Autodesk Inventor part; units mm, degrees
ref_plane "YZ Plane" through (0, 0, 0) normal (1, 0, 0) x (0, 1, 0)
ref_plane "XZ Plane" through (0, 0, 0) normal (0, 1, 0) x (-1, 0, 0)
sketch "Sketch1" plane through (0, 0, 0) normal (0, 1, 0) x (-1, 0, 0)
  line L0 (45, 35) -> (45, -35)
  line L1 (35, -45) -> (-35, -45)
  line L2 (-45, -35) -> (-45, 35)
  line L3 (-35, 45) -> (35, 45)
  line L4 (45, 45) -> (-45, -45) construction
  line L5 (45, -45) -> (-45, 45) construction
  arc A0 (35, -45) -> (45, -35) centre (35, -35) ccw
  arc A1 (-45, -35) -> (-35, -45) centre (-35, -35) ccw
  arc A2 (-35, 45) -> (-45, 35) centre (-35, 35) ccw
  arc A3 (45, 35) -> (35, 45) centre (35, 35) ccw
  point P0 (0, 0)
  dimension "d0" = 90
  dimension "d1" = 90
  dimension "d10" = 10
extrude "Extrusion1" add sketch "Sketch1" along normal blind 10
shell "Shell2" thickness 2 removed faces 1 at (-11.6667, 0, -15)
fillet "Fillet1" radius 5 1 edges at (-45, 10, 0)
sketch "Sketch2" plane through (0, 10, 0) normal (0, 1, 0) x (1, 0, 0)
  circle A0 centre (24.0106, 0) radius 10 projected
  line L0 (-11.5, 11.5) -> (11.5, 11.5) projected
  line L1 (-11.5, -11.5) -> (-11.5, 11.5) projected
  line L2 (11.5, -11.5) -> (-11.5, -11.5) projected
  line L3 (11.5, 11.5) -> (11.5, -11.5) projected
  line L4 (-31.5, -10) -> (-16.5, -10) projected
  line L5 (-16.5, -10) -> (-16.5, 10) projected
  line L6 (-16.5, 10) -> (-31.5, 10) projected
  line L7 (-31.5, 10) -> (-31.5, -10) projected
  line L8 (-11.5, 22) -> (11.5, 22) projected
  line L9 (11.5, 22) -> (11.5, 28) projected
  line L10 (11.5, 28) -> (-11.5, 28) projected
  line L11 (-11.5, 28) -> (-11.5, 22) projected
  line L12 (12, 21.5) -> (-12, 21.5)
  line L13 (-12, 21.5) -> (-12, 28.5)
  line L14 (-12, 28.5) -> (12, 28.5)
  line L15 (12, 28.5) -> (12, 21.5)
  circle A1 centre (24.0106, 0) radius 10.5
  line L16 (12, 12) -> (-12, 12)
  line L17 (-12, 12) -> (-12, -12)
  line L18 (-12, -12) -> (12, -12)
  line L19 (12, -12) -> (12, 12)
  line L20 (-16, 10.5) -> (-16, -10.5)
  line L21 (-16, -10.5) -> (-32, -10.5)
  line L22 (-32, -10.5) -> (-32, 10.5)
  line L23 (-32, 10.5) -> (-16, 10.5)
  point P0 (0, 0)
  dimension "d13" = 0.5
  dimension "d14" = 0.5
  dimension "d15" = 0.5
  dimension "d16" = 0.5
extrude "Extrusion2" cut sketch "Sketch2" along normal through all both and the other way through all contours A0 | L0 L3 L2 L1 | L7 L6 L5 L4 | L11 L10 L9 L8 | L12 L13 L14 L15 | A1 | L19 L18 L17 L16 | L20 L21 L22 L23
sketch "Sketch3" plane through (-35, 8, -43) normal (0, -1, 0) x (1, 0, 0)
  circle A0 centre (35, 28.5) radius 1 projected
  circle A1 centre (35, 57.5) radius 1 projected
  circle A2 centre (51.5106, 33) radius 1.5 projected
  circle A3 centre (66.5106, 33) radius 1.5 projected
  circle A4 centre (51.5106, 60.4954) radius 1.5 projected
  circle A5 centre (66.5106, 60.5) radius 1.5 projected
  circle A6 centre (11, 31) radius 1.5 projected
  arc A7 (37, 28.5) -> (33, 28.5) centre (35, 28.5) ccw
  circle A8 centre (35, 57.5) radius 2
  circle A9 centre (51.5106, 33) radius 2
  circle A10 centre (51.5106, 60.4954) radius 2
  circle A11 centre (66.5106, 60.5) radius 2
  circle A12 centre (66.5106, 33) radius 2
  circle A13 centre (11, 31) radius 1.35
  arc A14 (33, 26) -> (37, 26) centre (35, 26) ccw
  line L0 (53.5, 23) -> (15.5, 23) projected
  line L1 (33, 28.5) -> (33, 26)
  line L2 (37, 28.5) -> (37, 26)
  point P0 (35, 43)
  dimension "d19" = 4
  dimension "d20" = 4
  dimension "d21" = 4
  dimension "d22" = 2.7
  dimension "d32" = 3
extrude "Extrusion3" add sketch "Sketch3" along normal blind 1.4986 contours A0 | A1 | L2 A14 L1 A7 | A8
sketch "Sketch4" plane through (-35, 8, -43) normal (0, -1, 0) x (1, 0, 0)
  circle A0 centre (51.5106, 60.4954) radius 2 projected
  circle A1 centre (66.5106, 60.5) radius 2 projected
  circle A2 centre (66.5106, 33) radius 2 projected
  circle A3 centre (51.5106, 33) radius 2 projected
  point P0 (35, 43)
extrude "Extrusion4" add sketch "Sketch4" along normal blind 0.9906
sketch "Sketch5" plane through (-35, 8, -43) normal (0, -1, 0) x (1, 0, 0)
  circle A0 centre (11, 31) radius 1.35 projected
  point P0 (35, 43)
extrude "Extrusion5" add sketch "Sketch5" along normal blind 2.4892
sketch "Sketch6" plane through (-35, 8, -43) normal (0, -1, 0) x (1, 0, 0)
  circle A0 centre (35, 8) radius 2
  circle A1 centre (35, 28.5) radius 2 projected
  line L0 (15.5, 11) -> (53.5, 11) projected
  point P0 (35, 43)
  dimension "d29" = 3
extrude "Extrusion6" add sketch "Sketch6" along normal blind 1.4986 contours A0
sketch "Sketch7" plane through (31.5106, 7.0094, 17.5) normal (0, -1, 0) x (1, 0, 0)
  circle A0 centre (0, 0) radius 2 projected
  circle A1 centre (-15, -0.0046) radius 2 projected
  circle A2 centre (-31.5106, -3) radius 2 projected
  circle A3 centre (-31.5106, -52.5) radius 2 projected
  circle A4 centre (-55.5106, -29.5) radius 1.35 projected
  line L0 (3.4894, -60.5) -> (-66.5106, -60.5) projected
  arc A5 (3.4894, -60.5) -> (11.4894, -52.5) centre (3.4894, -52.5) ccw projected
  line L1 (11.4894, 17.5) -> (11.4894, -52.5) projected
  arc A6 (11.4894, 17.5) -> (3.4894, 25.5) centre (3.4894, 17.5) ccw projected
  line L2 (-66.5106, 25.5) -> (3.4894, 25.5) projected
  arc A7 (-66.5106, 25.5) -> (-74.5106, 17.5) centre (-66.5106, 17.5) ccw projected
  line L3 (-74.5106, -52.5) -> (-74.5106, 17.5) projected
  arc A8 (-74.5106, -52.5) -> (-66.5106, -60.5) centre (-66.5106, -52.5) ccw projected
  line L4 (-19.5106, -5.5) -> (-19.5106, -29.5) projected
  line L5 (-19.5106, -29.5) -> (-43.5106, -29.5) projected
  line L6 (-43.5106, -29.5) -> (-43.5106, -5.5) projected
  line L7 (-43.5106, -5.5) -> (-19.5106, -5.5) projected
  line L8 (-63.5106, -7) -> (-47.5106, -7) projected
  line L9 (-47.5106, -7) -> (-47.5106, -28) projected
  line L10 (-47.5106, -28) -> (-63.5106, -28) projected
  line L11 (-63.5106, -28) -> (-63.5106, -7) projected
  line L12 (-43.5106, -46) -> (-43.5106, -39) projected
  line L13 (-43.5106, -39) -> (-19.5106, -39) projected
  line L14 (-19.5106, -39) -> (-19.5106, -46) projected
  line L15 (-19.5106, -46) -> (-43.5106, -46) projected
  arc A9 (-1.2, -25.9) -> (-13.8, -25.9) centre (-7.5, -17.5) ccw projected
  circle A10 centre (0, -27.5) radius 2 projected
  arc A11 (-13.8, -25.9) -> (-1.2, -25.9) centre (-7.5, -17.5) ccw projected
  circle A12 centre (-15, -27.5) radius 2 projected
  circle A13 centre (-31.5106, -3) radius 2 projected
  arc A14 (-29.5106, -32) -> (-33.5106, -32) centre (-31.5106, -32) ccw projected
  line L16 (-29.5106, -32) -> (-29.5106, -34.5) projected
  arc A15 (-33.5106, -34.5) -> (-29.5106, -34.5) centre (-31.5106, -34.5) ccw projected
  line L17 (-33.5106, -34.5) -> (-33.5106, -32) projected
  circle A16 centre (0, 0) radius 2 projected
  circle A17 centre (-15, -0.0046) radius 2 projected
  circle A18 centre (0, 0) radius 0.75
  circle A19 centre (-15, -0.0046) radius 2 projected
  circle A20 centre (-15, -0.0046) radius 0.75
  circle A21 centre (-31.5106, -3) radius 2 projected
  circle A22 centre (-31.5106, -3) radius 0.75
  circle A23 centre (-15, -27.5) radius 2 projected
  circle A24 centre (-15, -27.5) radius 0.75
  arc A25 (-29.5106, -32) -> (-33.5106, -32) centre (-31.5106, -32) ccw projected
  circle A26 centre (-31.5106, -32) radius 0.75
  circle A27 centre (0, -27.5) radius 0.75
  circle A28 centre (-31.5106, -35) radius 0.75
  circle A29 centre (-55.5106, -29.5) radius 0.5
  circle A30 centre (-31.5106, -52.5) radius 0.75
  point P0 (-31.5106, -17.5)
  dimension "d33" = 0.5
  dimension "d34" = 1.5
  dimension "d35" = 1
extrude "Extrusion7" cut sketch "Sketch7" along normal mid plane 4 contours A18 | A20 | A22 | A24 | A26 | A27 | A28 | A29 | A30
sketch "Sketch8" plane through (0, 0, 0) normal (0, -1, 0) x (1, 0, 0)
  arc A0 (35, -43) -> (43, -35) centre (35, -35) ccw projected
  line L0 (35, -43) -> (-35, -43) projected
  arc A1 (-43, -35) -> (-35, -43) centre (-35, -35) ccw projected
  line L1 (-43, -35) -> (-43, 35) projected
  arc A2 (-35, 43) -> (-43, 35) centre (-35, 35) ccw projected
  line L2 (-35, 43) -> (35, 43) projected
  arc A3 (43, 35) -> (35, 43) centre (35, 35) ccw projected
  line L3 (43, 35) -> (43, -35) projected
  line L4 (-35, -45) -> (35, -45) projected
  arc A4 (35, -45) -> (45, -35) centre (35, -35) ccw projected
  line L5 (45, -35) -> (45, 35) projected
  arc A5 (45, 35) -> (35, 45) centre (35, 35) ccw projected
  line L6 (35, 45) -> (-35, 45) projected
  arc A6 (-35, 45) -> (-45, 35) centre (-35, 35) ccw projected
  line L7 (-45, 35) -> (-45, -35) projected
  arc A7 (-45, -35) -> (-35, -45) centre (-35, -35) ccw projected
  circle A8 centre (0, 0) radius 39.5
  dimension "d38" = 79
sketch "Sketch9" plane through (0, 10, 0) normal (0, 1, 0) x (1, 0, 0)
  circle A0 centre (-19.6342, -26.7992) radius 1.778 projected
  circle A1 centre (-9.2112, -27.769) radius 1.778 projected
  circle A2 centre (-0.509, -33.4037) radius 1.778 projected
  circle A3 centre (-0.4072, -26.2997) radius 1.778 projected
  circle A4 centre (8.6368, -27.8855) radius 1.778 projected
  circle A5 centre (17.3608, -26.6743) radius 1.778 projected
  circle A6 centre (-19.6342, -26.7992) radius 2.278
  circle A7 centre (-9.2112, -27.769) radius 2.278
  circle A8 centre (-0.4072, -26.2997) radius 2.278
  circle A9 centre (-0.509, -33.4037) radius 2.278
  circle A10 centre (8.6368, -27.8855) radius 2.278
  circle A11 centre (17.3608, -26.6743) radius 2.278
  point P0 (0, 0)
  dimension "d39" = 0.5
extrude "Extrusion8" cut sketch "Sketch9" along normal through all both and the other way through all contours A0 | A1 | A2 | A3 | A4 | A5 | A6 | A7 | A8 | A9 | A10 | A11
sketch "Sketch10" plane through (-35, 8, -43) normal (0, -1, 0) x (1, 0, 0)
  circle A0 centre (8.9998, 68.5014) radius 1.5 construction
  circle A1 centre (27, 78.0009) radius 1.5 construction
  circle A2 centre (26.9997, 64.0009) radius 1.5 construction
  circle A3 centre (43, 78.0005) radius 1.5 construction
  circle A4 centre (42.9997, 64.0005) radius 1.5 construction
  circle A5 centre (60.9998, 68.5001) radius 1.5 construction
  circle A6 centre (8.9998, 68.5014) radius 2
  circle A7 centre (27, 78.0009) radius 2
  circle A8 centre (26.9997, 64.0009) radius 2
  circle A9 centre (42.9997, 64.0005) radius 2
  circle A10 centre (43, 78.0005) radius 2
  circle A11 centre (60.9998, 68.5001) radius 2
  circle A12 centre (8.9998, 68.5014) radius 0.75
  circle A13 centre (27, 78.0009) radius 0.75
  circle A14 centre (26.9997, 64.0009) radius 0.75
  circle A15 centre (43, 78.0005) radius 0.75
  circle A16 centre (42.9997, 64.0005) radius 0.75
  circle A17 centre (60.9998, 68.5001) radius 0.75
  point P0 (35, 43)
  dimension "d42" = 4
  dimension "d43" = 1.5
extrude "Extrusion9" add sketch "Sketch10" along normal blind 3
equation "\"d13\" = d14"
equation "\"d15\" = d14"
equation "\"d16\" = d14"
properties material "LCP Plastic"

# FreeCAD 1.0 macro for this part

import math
import FreeCAD as App
import Part
import Sketcher

V = App.Vector


def edges_at(feature, points):
    """Names of the edges that pass closest to the given points."""
    edges = feature.Shape.Edges
    near = lambda p: min(range(len(edges)), key=lambda i: edges[i].distToShape(Part.Vertex(*p))[0])
    return sorted({f"Edge{near(p) + 1}" for p in points})


def faces_at(feature, points):
    """Names of the faces that lie closest to the given points."""
    faces = feature.Shape.Faces
    near = lambda p: min(range(len(faces)), key=lambda i: faces[i].distToShape(Part.Vertex(*p))[0])
    return sorted({f"Face{near(p) + 1}" for p in points})


def add_polygon(sketch, points):
    """Adds a closed chain of lines whose ends are joined by coincident constraints."""
    first, n = sketch.GeometryCount, len(points)
    for a, b in zip(points, points[1:] + points[:1]):
        sketch.addGeometry(Part.LineSegment(App.Vector(*a, 0), App.Vector(*b, 0)), False)
    for i in range(n):
        sketch.addConstraint(Sketcher.Constraint("Coincident", first + i, 2, first + (i + 1) % n, 1))

doc = App.newDocument("Part")
body = doc.addObject("PartDesign::Body", "Body")

# Sketch on XZ plane
sketch1 = body.newObject("Sketcher::SketchObject", "Sketch")
sketch1.AttachmentSupport = (doc.getObject("XZ_Plane"), [""])
sketch1.MapMode = "FlatFace"
sketch1.addGeometry([
    Part.LineSegment(V(-45, -35, 0), V(-45, 35, 0)),  # 0
    Part.ArcOfCircle(Part.Circle(V(-35, 35, 0), V(0, 0, 1), 10), math.radians(90), math.radians(180)),  # 1
    Part.LineSegment(V(-35, 45, 0), V(35, 45, 0)),  # 2
    Part.ArcOfCircle(Part.Circle(V(35, 35, 0), V(0, 0, 1), 10), math.radians(0), math.radians(90)),  # 3
    Part.LineSegment(V(45, 35, 0), V(45, -35, 0)),  # 4
    Part.ArcOfCircle(Part.Circle(V(35, -35, 0), V(0, 0, 1), 10), math.radians(-90), math.radians(0)),  # 5
    Part.LineSegment(V(35, -45, 0), V(-35, -45, 0)),  # 6
    Part.ArcOfCircle(Part.Circle(V(-35, -35, 0), V(0, 0, 1), 10), math.radians(180), math.radians(270)),  # 7
], False)
sketch1.addConstraint([
    Sketcher.Constraint("Tangent", 0, 2, 1, 2),
    Sketcher.Constraint("Tangent", 1, 1, 2, 1),
    Sketcher.Constraint("Tangent", 2, 2, 3, 2),
    Sketcher.Constraint("Tangent", 3, 1, 4, 1),
    Sketcher.Constraint("Tangent", 4, 2, 5, 2),
    Sketcher.Constraint("Tangent", 5, 1, 6, 1),
    Sketcher.Constraint("Tangent", 6, 2, 7, 2),
    Sketcher.Constraint("Tangent", 7, 1, 0, 1),
    Sketcher.Constraint("Vertical", 0),
    Sketcher.Constraint("Horizontal", 2),
    Sketcher.Constraint("Vertical", 4),
    Sketcher.Constraint("Horizontal", 6),
    Sketcher.Constraint("Equal", 1, 3),
    Sketcher.Constraint("Equal", 3, 5),
    Sketcher.Constraint("Equal", 5, 7),
    Sketcher.Constraint("Symmetric", 1, 3, 5, 3, -1, 1),
    Sketcher.Constraint("Equal", 6, 0),
    Sketcher.Constraint("Radius", 1, 10.0),
    Sketcher.Constraint("DistanceX", 2, 1, 2, 2, 70.0),
])
pad1 = body.newObject("PartDesign::Pad", "Pad")
pad1.Profile = sketch1
pad1.Length = 10
pad1.Reversed = True
doc.recompute()

thickness = body.newObject("PartDesign::Thickness", "Thickness")
thickness.Base = (pad1, faces_at(pad1, [(-11.667, 0, -15)]))
thickness.Value = 2
thickness.Reversed = True
thickness.Join = "Intersection"
doc.recompute()

fillet = body.newObject("PartDesign::Fillet", "Fillet")
fillet.Base = (thickness, edges_at(thickness, [(-45, 10, 0)]))
fillet.Radius = 5

# Sketch on XZ plane
sketch2 = body.newObject("Sketcher::SketchObject", "Sketch001")
sketch2.AttachmentSupport = (doc.getObject("XZ_Plane"), [""])
sketch2.MapMode = "FlatFace"
sketch2.AttachmentOffset = App.Placement(V(0, 0, -10), App.Rotation())
sketch2.addGeometry(Part.Circle(V(24, 0, 0), V(0, 0, 1), 10), False)  # 0
add_polygon(sketch2, [(12, 12), (12, -12), (-12, -12), (-12, 12)])  # lines 1-4
add_polygon(sketch2, [(-16, 10), (-16, -10), (-32, -10), (-32, 10)])  # lines 5-8
add_polygon(sketch2, [(-12, -22), (12, -22), (12, -28), (-12, -28)])  # lines 9-12
sketch2.addConstraint([
    Sketcher.Constraint("Vertical", 1),
    Sketcher.Constraint("Horizontal", 2),
    Sketcher.Constraint("Vertical", 3),
    Sketcher.Constraint("Horizontal", 4),
    Sketcher.Constraint("Vertical", 5),
    Sketcher.Constraint("Horizontal", 6),
    Sketcher.Constraint("Vertical", 7),
    Sketcher.Constraint("Horizontal", 8),
    Sketcher.Constraint("Horizontal", 9),
    Sketcher.Constraint("Vertical", 10),
    Sketcher.Constraint("Horizontal", 11),
    Sketcher.Constraint("Vertical", 12),
    Sketcher.Constraint("Symmetric", 1, 2, 3, 2, -1, 1),
    Sketcher.Constraint("PointOnObject", 0, 3, -1),
    Sketcher.Constraint("Vertical", 4, 2, 9, 2),
    Sketcher.Constraint("Vertical", 3, 2, 11, 2),
    Sketcher.Constraint("Equal", 11, 1),
    Sketcher.Constraint("Diameter", 0, 21.0),
    Sketcher.Constraint("DistanceX", 2, 2, 2, 1, 24.0),
    Sketcher.Constraint("DistanceX", 6, 2, 6, 1, 16.0),
    Sketcher.Constraint("DistanceY", 5, 2, 5, 1, 21.0),
    Sketcher.Constraint("DistanceY", 10, 2, 10, 1, 7.0),
    Sketcher.Constraint("DistanceX", 5, 2, -1, 1, 16.0),
    Sketcher.Constraint("DistanceY", 9, 2, 5, 2, 11.0),
    Sketcher.Constraint("DistanceY", 5, 2, -1, 1, 10.5),
    Sketcher.Constraint("DistanceX", -1, 1, 0, 3, 24.0106),
])
pocket1 = body.newObject("PartDesign::Pocket", "Pocket")
pocket1.Profile = sketch2
pocket1.Type = "ThroughAll"
pocket1.Midplane = True

# Sketch on XZ plane
sketch3 = body.newObject("Sketcher::SketchObject", "Sketch002")
sketch3.AttachmentSupport = (doc.getObject("XZ_Plane"), [""])
sketch3.MapMode = "FlatFace"
sketch3.AttachmentOffset = App.Placement(V(0, 0, -8), App.Rotation())
sketch3.addGeometry([
    Part.LineSegment(V(2, -17, 0), V(2, -14.5, 0)),  # 0
    Part.ArcOfCircle(Part.Circle(V(0, -14.5, 0), V(0, 0, 1), 2), math.radians(0), math.radians(180)),  # 1
    Part.LineSegment(V(-2, -14.5, 0), V(-2, -17, 0)),  # 2
    Part.ArcOfCircle(Part.Circle(V(0, -17, 0), V(0, 0, 1), 2), math.radians(180), math.radians(360)),  # 3
    Part.Circle(V(0, 14.5, 0), V(0, 0, 1), 2),  # 4
], False)
sketch3.addConstraint([
    Sketcher.Constraint("Tangent", 0, 2, 1, 1),
    Sketcher.Constraint("Tangent", 1, 2, 2, 1),
    Sketcher.Constraint("Tangent", 2, 2, 3, 1),
    Sketcher.Constraint("Tangent", 3, 2, 0, 1),
    Sketcher.Constraint("Vertical", 0),
    Sketcher.Constraint("Vertical", 2),
    Sketcher.Constraint("Equal", 3, 4),
    Sketcher.Constraint("Symmetric", 1, 3, 4, 3, -1, 1),
    Sketcher.Constraint("PointOnObject", 1, 3, -2),
    Sketcher.Constraint("Diameter", 4, 4.0),
    Sketcher.Constraint("DistanceY", 0, 1, 0, 2, 2.5),
    Sketcher.Constraint("DistanceY", 3, 3, -1, 1, 17.0),
])
pad2 = body.newObject("PartDesign::Pad", "Pad001")
pad2.Profile = sketch3
pad2.Length = 1.4986

# Sketch on XZ plane
sketch4 = body.newObject("Sketcher::SketchObject", "Sketch003")
sketch4.AttachmentSupport = (doc.getObject("XZ_Plane"), [""])
sketch4.MapMode = "FlatFace"
sketch4.AttachmentOffset = App.Placement(V(0, 0, -8), App.Rotation())
sketch4.addGeometry([
    Part.Circle(V(16.5, 17.5, 0), V(0, 0, 1), 2),
    Part.Circle(V(31.5, 17.5, 0), V(0, 0, 1), 2),
    Part.Circle(V(31.5, -10, 0), V(0, 0, 1), 2),
    Part.Circle(V(16.5, -10, 0), V(0, 0, 1), 2),
], False)
sketch4.addConstraint([
    Sketcher.Constraint("Equal", 0, 1),
    Sketcher.Constraint("Equal", 1, 2),
    Sketcher.Constraint("Equal", 2, 3),
    Sketcher.Constraint("Horizontal", 2, 3, 3, 3),
    Sketcher.Constraint("Vertical", 1, 3, 2, 3),
    Sketcher.Constraint("Vertical", 0, 3, 3, 3),
    Sketcher.Constraint("Diameter", 0, 4.0),
    Sketcher.Constraint("DistanceY", 2, 3, -1, 1, 10.0),
    Sketcher.Constraint("DistanceX", 0, 3, 1, 3, 15.0),
    Sketcher.Constraint("DistanceY", -1, 1, 1, 3, 17.5),
    Sketcher.Constraint("DistanceX", -1, 1, 0, 3, 16.5106),
    Sketcher.Constraint("DistanceY", -1, 1, 0, 3, 17.4954),
])
pad3 = body.newObject("PartDesign::Pad", "Pad002")
pad3.Profile = sketch4
pad3.Length = 0.9906

# Sketch on XZ plane
sketch5 = body.newObject("Sketcher::SketchObject", "Sketch004")
sketch5.AttachmentSupport = (doc.getObject("XZ_Plane"), [""])
sketch5.MapMode = "FlatFace"
sketch5.AttachmentOffset = App.Placement(V(0, 0, -8), App.Rotation())
sketch5.addGeometry(Part.Circle(V(-24, -12, 0), V(0, 0, 1), 1.4), False)
sketch5.addConstraint([
    Sketcher.Constraint("Diameter", 0, 2.7),
    Sketcher.Constraint("DistanceX", 0, 3, -1, 1, 24.0),
    Sketcher.Constraint("DistanceY", 0, 3, -1, 1, 12.0),
])
pad4 = body.newObject("PartDesign::Pad", "Pad003")
pad4.Profile = sketch5
pad4.Length = 2.4892

# Sketch on XZ plane
sketch6 = body.newObject("Sketcher::SketchObject", "Sketch005")
sketch6.AttachmentSupport = (doc.getObject("XZ_Plane"), [""])
sketch6.MapMode = "FlatFace"
sketch6.AttachmentOffset = App.Placement(V(0, 0, -8), App.Rotation())
sketch6.addGeometry(Part.Circle(V(0, -35, 0), V(0, 0, 1), 2), False)
sketch6.addConstraint([
    Sketcher.Constraint("PointOnObject", 0, 3, -2),
    Sketcher.Constraint("Diameter", 0, 4.0),
    Sketcher.Constraint("DistanceY", 0, 3, -1, 1, 35.0),
])
pad5 = body.newObject("PartDesign::Pad", "Pad004")
pad5.Profile = sketch6
pad5.Length = 1.4986

# Sketch on XZ plane
sketch7 = body.newObject("Sketcher::SketchObject", "Sketch006")
sketch7.AttachmentSupport = (doc.getObject("XZ_Plane"), [""])
sketch7.MapMode = "FlatFace"
sketch7.AttachmentOffset = App.Placement(V(0, 0, -7.0094), App.Rotation())
sketch7.addGeometry([
    Part.Circle(V(31.5, 17.5, 0), V(0, 0, 1), 0.8),  # 0
    Part.Circle(V(16.5, 17.5, 0), V(0, 0, 1), 0.8),  # 1
    Part.Circle(V(0, 14.5, 0), V(0, 0, 1), 0.8),  # 2
    Part.Circle(V(16.5, -10, 0), V(0, 0, 1), 0.8),  # 3
    Part.Circle(V(0, -14.5, 0), V(0, 0, 1), 0.8),  # 4
    Part.Circle(V(31.5, -10, 0), V(0, 0, 1), 0.8),  # 5
    Part.Circle(V(0, -17.5, 0), V(0, 0, 1), 0.8),  # 6
    Part.Circle(V(-24, -12, 0), V(0, 0, 1), 0.5),  # 7
    Part.Circle(V(0, -35, 0), V(0, 0, 1), 0.8),  # 8
], False)
sketch7.addConstraint([
    Sketcher.Constraint("Equal", 0, 1),
    Sketcher.Constraint("Equal", 1, 2),
    Sketcher.Constraint("Equal", 2, 3),
    Sketcher.Constraint("Equal", 3, 4),
    Sketcher.Constraint("Equal", 4, 5),
    Sketcher.Constraint("Equal", 5, 6),
    Sketcher.Constraint("Equal", 6, 8),
    Sketcher.Constraint("Symmetric", 2, 3, 4, 3, -1, 1),
    Sketcher.Constraint("PointOnObject", 2, 3, -2),
    Sketcher.Constraint("PointOnObject", 6, 3, -2),
    Sketcher.Constraint("PointOnObject", 8, 3, -2),
    Sketcher.Constraint("Horizontal", 3, 3, 5, 3),
    Sketcher.Constraint("Vertical", 1, 3, 3, 3),
    Sketcher.Constraint("Vertical", 0, 3, 5, 3),
    Sketcher.Constraint("Diameter", 7, 1.0),
    Sketcher.Constraint("Diameter", 0, 1.5),
    Sketcher.Constraint("DistanceY", 3, 3, -1, 1, 10.0),
    Sketcher.Constraint("DistanceX", 7, 3, -1, 1, 24.0),
    Sketcher.Constraint("DistanceY", 7, 3, -1, 1, 12.0),
    Sketcher.Constraint("DistanceY", 8, 3, -1, 1, 35.0),
    Sketcher.Constraint("DistanceX", 1, 3, 0, 3, 15.0),
    Sketcher.Constraint("DistanceY", 2, 3, 0, 3, 3.0),
    Sketcher.Constraint("DistanceY", 4, 3, 2, 3, 29.0),
    Sketcher.Constraint("DistanceY", 6, 3, 4, 3, 3.0),
    Sketcher.Constraint("DistanceX", -1, 1, 0, 3, 31.5106),
    Sketcher.Constraint("DistanceY", -1, 1, 1, 3, 17.4954),
])
pocket2 = body.newObject("PartDesign::Pocket", "Pocket001")
pocket2.Profile = sketch7
pocket2.Length = 4
pocket2.Midplane = True

# Sketch on XZ plane
sketch8 = body.newObject("Sketcher::SketchObject", "Sketch007")
sketch8.AttachmentSupport = (doc.getObject("XZ_Plane"), [""])
sketch8.MapMode = "FlatFace"
sketch8.AttachmentOffset = App.Placement(V(0, 0, -10), App.Rotation())
sketch8.addGeometry([
    Part.Circle(V(-19.6, 26.8, 0), V(0, 0, 1), 2.3),  # 0
    Part.Circle(V(-9.2, 27.8, 0), V(0, 0, 1), 2.3),  # 1
    Part.Circle(V(-0.5, 33.4, 0), V(0, 0, 1), 2.3),  # 2
    Part.Circle(V(-0.4, 26.3, 0), V(0, 0, 1), 2.3),  # 3
    Part.Circle(V(8.6, 27.9, 0), V(0, 0, 1), 2.3),  # 4
    Part.Circle(V(17.4, 26.7, 0), V(0, 0, 1), 2.3),  # 5
], False)
sketch8.addConstraint([
    Sketcher.Constraint("Equal", 0, 1),
    Sketcher.Constraint("Equal", 1, 2),
    Sketcher.Constraint("Equal", 2, 3),
    Sketcher.Constraint("Equal", 3, 4),
    Sketcher.Constraint("Equal", 4, 5),
    Sketcher.Constraint("Diameter", 0, 4.556),
    Sketcher.Constraint("DistanceY", 3, 3, 0, 3, 0.4995),
    Sketcher.Constraint("DistanceY", -1, 1, 1, 3, 27.769),
    Sketcher.Constraint("DistanceX", 2, 3, -1, 1, 0.509),
    Sketcher.Constraint("DistanceX", 0, 3, 1, 3, 10.423),
    Sketcher.Constraint("DistanceY", 3, 3, 2, 3, 7.104),
    Sketcher.Constraint("DistanceX", 1, 3, 3, 3, 8.804),
    Sketcher.Constraint("DistanceX", 3, 3, 4, 3, 9.044),
    Sketcher.Constraint("DistanceX", 4, 3, 5, 3, 8.724),
    Sketcher.Constraint("DistanceY", 5, 3, 0, 3, 0.125),
    Sketcher.Constraint("DistanceX", 0, 3, -1, 1, 19.6342),
    Sketcher.Constraint("DistanceY", -1, 1, 0, 3, 26.7992),
    Sketcher.Constraint("DistanceY", -1, 1, 4, 3, 27.8855),
])
pocket3 = body.newObject("PartDesign::Pocket", "Pocket002")
pocket3.Profile = sketch8
pocket3.Type = "ThroughAll"
pocket3.Midplane = True

# Sketch on XZ plane
sketch9 = body.newObject("Sketcher::SketchObject", "Sketch008")
sketch9.AttachmentSupport = (doc.getObject("XZ_Plane"), [""])
sketch9.MapMode = "FlatFace"
sketch9.AttachmentOffset = App.Placement(V(0, 0, -8), App.Rotation())
sketch9.addGeometry([
    Part.Circle(V(-26, 25.5, 0), V(0, 0, 1), 2),  # 0
    Part.Circle(V(-26, 25.5, 0), V(0, 0, 1), 0.8),  # 1
    Part.Circle(V(-8, 35, 0), V(0, 0, 1), 2),  # 2
    Part.Circle(V(-8, 35, 0), V(0, 0, 1), 0.8),  # 3
    Part.Circle(V(-8, 21, 0), V(0, 0, 1), 2),  # 4
    Part.Circle(V(-8, 21, 0), V(0, 0, 1), 0.8),  # 5
    Part.Circle(V(8, 21, 0), V(0, 0, 1), 2),  # 6
    Part.Circle(V(8, 21, 0), V(0, 0, 1), 0.8),  # 7
    Part.Circle(V(8, 35, 0), V(0, 0, 1), 2),  # 8
    Part.Circle(V(8, 35, 0), V(0, 0, 1), 0.8),  # 9
    Part.Circle(V(26, 25.5, 0), V(0, 0, 1), 2),  # 10
    Part.Circle(V(26, 25.5, 0), V(0, 0, 1), 0.8),  # 11
], False)
sketch9.addConstraint([
    Sketcher.Constraint("Coincident", 1, 3, 0, 3),
    Sketcher.Constraint("Coincident", 3, 3, 2, 3),
    Sketcher.Constraint("Coincident", 5, 3, 4, 3),
    Sketcher.Constraint("Coincident", 7, 3, 6, 3),
    Sketcher.Constraint("Coincident", 9, 3, 8, 3),
    Sketcher.Constraint("Coincident", 11, 3, 10, 3),
    Sketcher.Constraint("Equal", 0, 2),
    Sketcher.Constraint("Equal", 1, 3),
    Sketcher.Constraint("Equal", 2, 4),
    Sketcher.Constraint("Equal", 3, 5),
    Sketcher.Constraint("Equal", 4, 6),
    Sketcher.Constraint("Equal", 5, 7),
    Sketcher.Constraint("Equal", 6, 8),
    Sketcher.Constraint("Equal", 7, 9),
    Sketcher.Constraint("Equal", 8, 10),
    Sketcher.Constraint("Equal", 9, 11),
    Sketcher.Constraint("Symmetric", 2, 3, 8, 3, -2),
    Sketcher.Constraint("Diameter", 0, 4.0),
    Sketcher.Constraint("Diameter", 1, 1.5),
    Sketcher.Constraint("DistanceX", 2, 3, -1, 1, 8.0),
    Sketcher.Constraint("DistanceY", 4, 3, 2, 3, 14.0),
    Sketcher.Constraint("DistanceX", 0, 3, 4, 3, 18.0),
    Sketcher.Constraint("DistanceX", 4, 3, 6, 3, 16.0),
    Sketcher.Constraint("DistanceY", 6, 3, 8, 3, 14.0),
    Sketcher.Constraint("DistanceX", 6, 3, 10, 3, 18.0),
    Sketcher.Constraint("DistanceY", -1, 1, 10, 3, 25.5),
    Sketcher.Constraint("DistanceY", -1, 1, 2, 3, 35.001),
    Sketcher.Constraint("DistanceY", 6, 3, 0, 3, 4.501),
    Sketcher.Constraint("DistanceX", 0, 3, -1, 1, 26.0002),
])
pad6 = body.newObject("PartDesign::Pad", "Pad005")
pad6.Profile = sketch9
pad6.Length = 3

doc.recompute()
